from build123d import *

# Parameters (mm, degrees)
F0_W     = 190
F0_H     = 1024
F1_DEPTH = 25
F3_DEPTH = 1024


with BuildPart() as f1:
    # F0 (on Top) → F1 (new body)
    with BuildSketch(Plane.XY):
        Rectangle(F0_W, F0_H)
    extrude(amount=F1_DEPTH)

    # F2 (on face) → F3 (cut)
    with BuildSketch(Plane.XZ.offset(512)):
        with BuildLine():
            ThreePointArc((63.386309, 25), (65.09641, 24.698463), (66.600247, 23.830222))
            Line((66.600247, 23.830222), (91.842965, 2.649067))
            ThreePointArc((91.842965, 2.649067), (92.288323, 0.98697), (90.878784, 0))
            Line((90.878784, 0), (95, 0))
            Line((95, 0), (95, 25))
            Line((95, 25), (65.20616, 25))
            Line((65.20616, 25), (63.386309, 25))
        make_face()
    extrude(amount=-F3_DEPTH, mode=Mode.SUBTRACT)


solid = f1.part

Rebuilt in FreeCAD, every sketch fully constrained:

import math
import FreeCAD as App
import Part
import Sketcher
from FreeCAD import Vector
Q = App.Units.Quantity

doc = App.newDocument("Part")
params = doc.addObject("Spreadsheet::Sheet", "Params")
for row, (alias, value) in enumerate([
    ("sketch1_width", "190 mm"),
    ("sketch1_height", "1024 mm"),
    ("pad1_length", "25 mm"),
    ("sketch2_radius", "4.999998 mm"),
    ("sketch2_radius2", "1.5 mm"),
    ("sketch2_height", "25 mm"),
    ("pocket1_length", "1024 mm"),
], start=1):
    params.set(f"A{row}", alias)
    params.set(f"B{row}", "=" + value)
    params.setAlias(f"B{row}", alias)

body = doc.addObject("PartDesign::Body", "Body")

sketch1 = body.newObject("Sketcher::SketchObject", "Sketch")
sketch1.AttachmentSupport = (doc.getObject("XY_Plane"), [""])
sketch1.MapMode = "FlatFace"
sketch1.addGeometry([
    Part.LineSegment(Vector(-95, 512, 0), Vector(-95, -512, 0)),
    Part.LineSegment(Vector(-95, -512, 0), Vector(95, -512, 0)),
    Part.LineSegment(Vector(95, -512, 0), Vector(95, 512, 0)),
    Part.LineSegment(Vector(95, 512, 0), Vector(-95, 512, 0)),
], False)
sketch1.addConstraint([
    Sketcher.Constraint("Coincident", 0, 2, 1, 1),
    Sketcher.Constraint("Coincident", 1, 2, 2, 1),
    Sketcher.Constraint("Coincident", 2, 2, 3, 1),
    Sketcher.Constraint("Coincident", 3, 2, 0, 1),
    Sketcher.Constraint("Vertical", 0),
    Sketcher.Constraint("Horizontal", 1),
    Sketcher.Constraint("Vertical", 2),
    Sketcher.Constraint("Horizontal", 3),
    Sketcher.Constraint("Symmetric", 0, 2, 2, 2, -1, 1),
    Sketcher.Constraint("DistanceX", 1, 1, 1, 2, Q("190 mm")),
    Sketcher.Constraint("DistanceY", 0, 2, 0, 1, Q("1024 mm")),
])
sketch1.setExpression("Constraints[9]", "Params.sketch1_width")
sketch1.setExpression("Constraints[10]", "Params.sketch1_height")
pad1 = body.newObject("PartDesign::Pad", "Pad")
pad1.Profile = sketch1
pad1.setExpression("Length", "Params.pad1_length")

sketch2 = body.newObject("Sketcher::SketchObject", "Sketch001")
sketch2.AttachmentSupport = (doc.getObject("XZ_Plane"), [""])
sketch2.MapMode = "FlatFace"
sketch2.AttachmentOffset = App.Placement(Vector(0, 0, 512), App.Rotation())
sketch2.addGeometry([
    Part.ArcOfCircle(Part.Circle(Vector(63.4, 20, 0), Vector(0, 0, 1), 5), math.radians(50), math.radians(90)),
    Part.LineSegment(Vector(66.6, 23.8, 0), Vector(91.8, 2.6, 0)),
    Part.ArcOfCircle(Part.Circle(Vector(90.9, 1.5, 0), Vector(0, 0, 1), 1.5), math.radians(-90), math.radians(50)),
    Part.LineSegment(Vector(90.9, 0, 0), Vector(95, 0, 0)),
    Part.LineSegment(Vector(95, 0, 0), Vector(95, 25, 0)),
    Part.LineSegment(Vector(95, 25, 0), Vector(63.4, 25, 0)),
], False)
sketch2.addConstraint([
    Sketcher.Constraint("Tangent", 0, 1, 1, 1),
    Sketcher.Constraint("Tangent", 1, 2, 2, 2),
    Sketcher.Constraint("Tangent", 2, 1, 3, 1),
    Sketcher.Constraint("Coincident", 3, 2, 4, 1),
    Sketcher.Constraint("Coincident", 4, 2, 5, 1),
    Sketcher.Constraint("Tangent", 5, 2, 0, 2),
    Sketcher.Constraint("Horizontal", 3),
    Sketcher.Constraint("Vertical", 4),
    Sketcher.Constraint("Horizontal", 5),
    Sketcher.Constraint("PointOnObject", 2, 1, -1),
    Sketcher.Constraint("Radius", 0, Q("4.999998 mm")),
    Sketcher.Constraint("Radius", 2, Q("1.5 mm")),
    Sketcher.Constraint("DistanceY", 4, 1, 4, 2, Q("25 mm")),
    Sketcher.Constraint("Angle", 1, Q("-40 deg")),
    Sketcher.Constraint("DistanceX", -1, 1, 3, 2, Q("95 mm")),
    Sketcher.Constraint("DistanceX", 5, 2, 5, 1, Q("31.613691 mm")),
])
sketch2.setExpression("Constraints[10]", "Params.sketch2_radius")
sketch2.setExpression("Constraints[11]", "Params.sketch2_radius2")
sketch2.setExpression("Constraints[12]", "Params.sketch2_height")
pocket1 = body.newObject("PartDesign::Pocket", "Pocket")
pocket1.Profile = sketch2
pocket1.setExpression("Length", "Params.pocket1_length")

doc.recompute()
